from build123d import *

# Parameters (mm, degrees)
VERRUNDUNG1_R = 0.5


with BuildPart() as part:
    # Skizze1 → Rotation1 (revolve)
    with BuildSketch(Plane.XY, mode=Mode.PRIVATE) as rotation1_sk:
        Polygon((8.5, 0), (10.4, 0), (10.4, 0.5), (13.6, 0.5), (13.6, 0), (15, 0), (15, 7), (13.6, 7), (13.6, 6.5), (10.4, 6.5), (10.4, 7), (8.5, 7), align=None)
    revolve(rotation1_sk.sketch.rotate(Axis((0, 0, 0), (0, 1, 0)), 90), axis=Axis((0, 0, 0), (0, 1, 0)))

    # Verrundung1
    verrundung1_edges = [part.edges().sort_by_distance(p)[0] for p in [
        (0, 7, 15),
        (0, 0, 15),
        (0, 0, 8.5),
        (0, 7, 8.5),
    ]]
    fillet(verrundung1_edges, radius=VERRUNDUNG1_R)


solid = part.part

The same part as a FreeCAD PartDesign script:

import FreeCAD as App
import Part
import Sketcher
from FreeCAD import Vector
Q = App.Units.Quantity


def edges_at(feature, points):
    """Names of the edges that pass closest to the given points."""
    edges = feature.Shape.Edges
    near = lambda p: min(range(len(edges)), key=lambda i: edges[i].distToShape(Part.Vertex(*p))[0])
    return sorted({f"Edge{near(p) + 1}" for p in points})

doc = App.newDocument("Part")
params = doc.addObject("Spreadsheet::Sheet", "Params")
for row, (alias, value) in enumerate([
    ("sketch1_height", "7 mm"),
    ("sketch1_width", "1.9 mm"),
    ("sketch1_width2", "3.2 mm"),
    ("sketch1_width3", "1.4 mm"),
    ("sketch1_height2", "0.5 mm"),
    ("revolution_angle", "360 deg"),
    ("fillet_radius", "0.5 mm"),
], start=1):
    params.set(f"A{row}", alias)
    params.set(f"B{row}", "=" + value)
    params.setAlias(f"B{row}", alias)

body = doc.addObject("PartDesign::Body", "Body")

# Sketch on XY plane
sketch1 = body.newObject("Sketcher::SketchObject", "Sketch")
sketch1.AttachmentSupport = (doc.getObject("XY_Plane"), [""])
sketch1.MapMode = "FlatFace"
sketch1.addGeometry([
    Part.LineSegment(Vector(8.5, 0, 0), Vector(10.4, 0, 0)),  # 0
    Part.LineSegment(Vector(10.4, 0, 0), Vector(10.4, 0.5, 0)),  # 1
    Part.LineSegment(Vector(10.4, 0.5, 0), Vector(13.6, 0.5, 0)),  # 2
    Part.LineSegment(Vector(13.6, 0.5, 0), Vector(13.6, 0, 0)),  # 3
    Part.LineSegment(Vector(13.6, 0, 0), Vector(15, 0, 0)),  # 4
    Part.LineSegment(Vector(15, 0, 0), Vector(15, 7, 0)),  # 5
    Part.LineSegment(Vector(15, 7, 0), Vector(13.6, 7, 0)),  # 6
    Part.LineSegment(Vector(13.6, 7, 0), Vector(13.6, 6.5, 0)),  # 7
    Part.LineSegment(Vector(13.6, 6.5, 0), Vector(10.4, 6.5, 0)),  # 8
    Part.LineSegment(Vector(10.4, 6.5, 0), Vector(10.4, 7, 0)),  # 9
    Part.LineSegment(Vector(10.4, 7, 0), Vector(8.5, 7, 0)),  # 10
    Part.LineSegment(Vector(8.5, 7, 0), Vector(8.5, 0, 0)),  # 11
], False)
sketch1.addConstraint([
    Sketcher.Constraint("Coincident", 0, 2, 1, 1),
    Sketcher.Constraint("Coincident", 1, 2, 2, 1),
    Sketcher.Constraint("Coincident", 2, 2, 3, 1),
    Sketcher.Constraint("Coincident", 3, 2, 4, 1),
    Sketcher.Constraint("Coincident", 4, 2, 5, 1),
    Sketcher.Constraint("Coincident", 5, 2, 6, 1),
    Sketcher.Constraint("Coincident", 6, 2, 7, 1),
    Sketcher.Constraint("Coincident", 7, 2, 8, 1),
    Sketcher.Constraint("Coincident", 8, 2, 9, 1),
    Sketcher.Constraint("Coincident", 9, 2, 10, 1),
    Sketcher.Constraint("Coincident", 10, 2, 11, 1),
    Sketcher.Constraint("Coincident", 11, 2, 0, 1),
    Sketcher.Constraint("Horizontal", 0),
    Sketcher.Constraint("Vertical", 1),
    Sketcher.Constraint("Horizontal", 2),
    Sketcher.Constraint("Vertical", 3),
    Sketcher.Constraint("Horizontal", 4),
    Sketcher.Constraint("Vertical", 5),
    Sketcher.Constraint("Horizontal", 6),
    Sketcher.Constraint("Vertical", 7),
    Sketcher.Constraint("Horizontal", 8),
    Sketcher.Constraint("Vertical", 9),
    Sketcher.Constraint("Horizontal", 10),
    Sketcher.Constraint("Vertical", 11),
    Sketcher.Constraint("PointOnObject", 0, 2, -1),
    Sketcher.Constraint("PointOnObject", 3, 2, -1),
    Sketcher.Constraint("Horizontal", 6, 2, 9, 2),
    Sketcher.Constraint("Vertical", 3, 2, 6, 2),
    Sketcher.Constraint("Vertical", 1, 2, 8, 2),
    Sketcher.Constraint("Equal", 3, 7),
    Sketcher.Constraint("DistanceY", 5, 1, 5, 2, Q("7 mm")),
    Sketcher.Constraint("DistanceX", 0, 1, 0, 2, Q("1.9 mm")),
    Sketcher.Constraint("DistanceX", 2, 1, 2, 2, Q("3.2 mm")),
    Sketcher.Constraint("DistanceX", 4, 1, 4, 2, Q("1.4 mm")),
    Sketcher.Constraint("DistanceY", 1, 1, 1, 2, Q("0.5 mm")),
    Sketcher.Constraint("DistanceX", -1, 1, 4, 2, Q("15 mm")),
])
sketch1.setExpression("Constraints[30]", "Params.sketch1_height")
sketch1.setExpression("Constraints[31]", "Params.sketch1_width")
sketch1.setExpression("Constraints[32]", "Params.sketch1_width2")
sketch1.setExpression("Constraints[33]", "Params.sketch1_width3")
sketch1.setExpression("Constraints[34]", "Params.sketch1_height2")
revolution = body.newObject("PartDesign::Revolution", "Revolution")
revolution.Profile = sketch1
revolution.ReferenceAxis = (sketch1, ["V_Axis"])
revolution.setExpression("Angle", "Params.revolution_angle")
doc.recompute()

fillet = body.newObject("PartDesign::Fillet", "Fillet")
fillet.Base = (revolution, edges_at(revolution, [
    (0, 7, 15),
    (0, 0, 15),
    (0, 0, 8.5),
    (0, 7, 8.5),
]))
fillet.setExpression("Radius", "Params.fillet_radius")

doc.recompute()
